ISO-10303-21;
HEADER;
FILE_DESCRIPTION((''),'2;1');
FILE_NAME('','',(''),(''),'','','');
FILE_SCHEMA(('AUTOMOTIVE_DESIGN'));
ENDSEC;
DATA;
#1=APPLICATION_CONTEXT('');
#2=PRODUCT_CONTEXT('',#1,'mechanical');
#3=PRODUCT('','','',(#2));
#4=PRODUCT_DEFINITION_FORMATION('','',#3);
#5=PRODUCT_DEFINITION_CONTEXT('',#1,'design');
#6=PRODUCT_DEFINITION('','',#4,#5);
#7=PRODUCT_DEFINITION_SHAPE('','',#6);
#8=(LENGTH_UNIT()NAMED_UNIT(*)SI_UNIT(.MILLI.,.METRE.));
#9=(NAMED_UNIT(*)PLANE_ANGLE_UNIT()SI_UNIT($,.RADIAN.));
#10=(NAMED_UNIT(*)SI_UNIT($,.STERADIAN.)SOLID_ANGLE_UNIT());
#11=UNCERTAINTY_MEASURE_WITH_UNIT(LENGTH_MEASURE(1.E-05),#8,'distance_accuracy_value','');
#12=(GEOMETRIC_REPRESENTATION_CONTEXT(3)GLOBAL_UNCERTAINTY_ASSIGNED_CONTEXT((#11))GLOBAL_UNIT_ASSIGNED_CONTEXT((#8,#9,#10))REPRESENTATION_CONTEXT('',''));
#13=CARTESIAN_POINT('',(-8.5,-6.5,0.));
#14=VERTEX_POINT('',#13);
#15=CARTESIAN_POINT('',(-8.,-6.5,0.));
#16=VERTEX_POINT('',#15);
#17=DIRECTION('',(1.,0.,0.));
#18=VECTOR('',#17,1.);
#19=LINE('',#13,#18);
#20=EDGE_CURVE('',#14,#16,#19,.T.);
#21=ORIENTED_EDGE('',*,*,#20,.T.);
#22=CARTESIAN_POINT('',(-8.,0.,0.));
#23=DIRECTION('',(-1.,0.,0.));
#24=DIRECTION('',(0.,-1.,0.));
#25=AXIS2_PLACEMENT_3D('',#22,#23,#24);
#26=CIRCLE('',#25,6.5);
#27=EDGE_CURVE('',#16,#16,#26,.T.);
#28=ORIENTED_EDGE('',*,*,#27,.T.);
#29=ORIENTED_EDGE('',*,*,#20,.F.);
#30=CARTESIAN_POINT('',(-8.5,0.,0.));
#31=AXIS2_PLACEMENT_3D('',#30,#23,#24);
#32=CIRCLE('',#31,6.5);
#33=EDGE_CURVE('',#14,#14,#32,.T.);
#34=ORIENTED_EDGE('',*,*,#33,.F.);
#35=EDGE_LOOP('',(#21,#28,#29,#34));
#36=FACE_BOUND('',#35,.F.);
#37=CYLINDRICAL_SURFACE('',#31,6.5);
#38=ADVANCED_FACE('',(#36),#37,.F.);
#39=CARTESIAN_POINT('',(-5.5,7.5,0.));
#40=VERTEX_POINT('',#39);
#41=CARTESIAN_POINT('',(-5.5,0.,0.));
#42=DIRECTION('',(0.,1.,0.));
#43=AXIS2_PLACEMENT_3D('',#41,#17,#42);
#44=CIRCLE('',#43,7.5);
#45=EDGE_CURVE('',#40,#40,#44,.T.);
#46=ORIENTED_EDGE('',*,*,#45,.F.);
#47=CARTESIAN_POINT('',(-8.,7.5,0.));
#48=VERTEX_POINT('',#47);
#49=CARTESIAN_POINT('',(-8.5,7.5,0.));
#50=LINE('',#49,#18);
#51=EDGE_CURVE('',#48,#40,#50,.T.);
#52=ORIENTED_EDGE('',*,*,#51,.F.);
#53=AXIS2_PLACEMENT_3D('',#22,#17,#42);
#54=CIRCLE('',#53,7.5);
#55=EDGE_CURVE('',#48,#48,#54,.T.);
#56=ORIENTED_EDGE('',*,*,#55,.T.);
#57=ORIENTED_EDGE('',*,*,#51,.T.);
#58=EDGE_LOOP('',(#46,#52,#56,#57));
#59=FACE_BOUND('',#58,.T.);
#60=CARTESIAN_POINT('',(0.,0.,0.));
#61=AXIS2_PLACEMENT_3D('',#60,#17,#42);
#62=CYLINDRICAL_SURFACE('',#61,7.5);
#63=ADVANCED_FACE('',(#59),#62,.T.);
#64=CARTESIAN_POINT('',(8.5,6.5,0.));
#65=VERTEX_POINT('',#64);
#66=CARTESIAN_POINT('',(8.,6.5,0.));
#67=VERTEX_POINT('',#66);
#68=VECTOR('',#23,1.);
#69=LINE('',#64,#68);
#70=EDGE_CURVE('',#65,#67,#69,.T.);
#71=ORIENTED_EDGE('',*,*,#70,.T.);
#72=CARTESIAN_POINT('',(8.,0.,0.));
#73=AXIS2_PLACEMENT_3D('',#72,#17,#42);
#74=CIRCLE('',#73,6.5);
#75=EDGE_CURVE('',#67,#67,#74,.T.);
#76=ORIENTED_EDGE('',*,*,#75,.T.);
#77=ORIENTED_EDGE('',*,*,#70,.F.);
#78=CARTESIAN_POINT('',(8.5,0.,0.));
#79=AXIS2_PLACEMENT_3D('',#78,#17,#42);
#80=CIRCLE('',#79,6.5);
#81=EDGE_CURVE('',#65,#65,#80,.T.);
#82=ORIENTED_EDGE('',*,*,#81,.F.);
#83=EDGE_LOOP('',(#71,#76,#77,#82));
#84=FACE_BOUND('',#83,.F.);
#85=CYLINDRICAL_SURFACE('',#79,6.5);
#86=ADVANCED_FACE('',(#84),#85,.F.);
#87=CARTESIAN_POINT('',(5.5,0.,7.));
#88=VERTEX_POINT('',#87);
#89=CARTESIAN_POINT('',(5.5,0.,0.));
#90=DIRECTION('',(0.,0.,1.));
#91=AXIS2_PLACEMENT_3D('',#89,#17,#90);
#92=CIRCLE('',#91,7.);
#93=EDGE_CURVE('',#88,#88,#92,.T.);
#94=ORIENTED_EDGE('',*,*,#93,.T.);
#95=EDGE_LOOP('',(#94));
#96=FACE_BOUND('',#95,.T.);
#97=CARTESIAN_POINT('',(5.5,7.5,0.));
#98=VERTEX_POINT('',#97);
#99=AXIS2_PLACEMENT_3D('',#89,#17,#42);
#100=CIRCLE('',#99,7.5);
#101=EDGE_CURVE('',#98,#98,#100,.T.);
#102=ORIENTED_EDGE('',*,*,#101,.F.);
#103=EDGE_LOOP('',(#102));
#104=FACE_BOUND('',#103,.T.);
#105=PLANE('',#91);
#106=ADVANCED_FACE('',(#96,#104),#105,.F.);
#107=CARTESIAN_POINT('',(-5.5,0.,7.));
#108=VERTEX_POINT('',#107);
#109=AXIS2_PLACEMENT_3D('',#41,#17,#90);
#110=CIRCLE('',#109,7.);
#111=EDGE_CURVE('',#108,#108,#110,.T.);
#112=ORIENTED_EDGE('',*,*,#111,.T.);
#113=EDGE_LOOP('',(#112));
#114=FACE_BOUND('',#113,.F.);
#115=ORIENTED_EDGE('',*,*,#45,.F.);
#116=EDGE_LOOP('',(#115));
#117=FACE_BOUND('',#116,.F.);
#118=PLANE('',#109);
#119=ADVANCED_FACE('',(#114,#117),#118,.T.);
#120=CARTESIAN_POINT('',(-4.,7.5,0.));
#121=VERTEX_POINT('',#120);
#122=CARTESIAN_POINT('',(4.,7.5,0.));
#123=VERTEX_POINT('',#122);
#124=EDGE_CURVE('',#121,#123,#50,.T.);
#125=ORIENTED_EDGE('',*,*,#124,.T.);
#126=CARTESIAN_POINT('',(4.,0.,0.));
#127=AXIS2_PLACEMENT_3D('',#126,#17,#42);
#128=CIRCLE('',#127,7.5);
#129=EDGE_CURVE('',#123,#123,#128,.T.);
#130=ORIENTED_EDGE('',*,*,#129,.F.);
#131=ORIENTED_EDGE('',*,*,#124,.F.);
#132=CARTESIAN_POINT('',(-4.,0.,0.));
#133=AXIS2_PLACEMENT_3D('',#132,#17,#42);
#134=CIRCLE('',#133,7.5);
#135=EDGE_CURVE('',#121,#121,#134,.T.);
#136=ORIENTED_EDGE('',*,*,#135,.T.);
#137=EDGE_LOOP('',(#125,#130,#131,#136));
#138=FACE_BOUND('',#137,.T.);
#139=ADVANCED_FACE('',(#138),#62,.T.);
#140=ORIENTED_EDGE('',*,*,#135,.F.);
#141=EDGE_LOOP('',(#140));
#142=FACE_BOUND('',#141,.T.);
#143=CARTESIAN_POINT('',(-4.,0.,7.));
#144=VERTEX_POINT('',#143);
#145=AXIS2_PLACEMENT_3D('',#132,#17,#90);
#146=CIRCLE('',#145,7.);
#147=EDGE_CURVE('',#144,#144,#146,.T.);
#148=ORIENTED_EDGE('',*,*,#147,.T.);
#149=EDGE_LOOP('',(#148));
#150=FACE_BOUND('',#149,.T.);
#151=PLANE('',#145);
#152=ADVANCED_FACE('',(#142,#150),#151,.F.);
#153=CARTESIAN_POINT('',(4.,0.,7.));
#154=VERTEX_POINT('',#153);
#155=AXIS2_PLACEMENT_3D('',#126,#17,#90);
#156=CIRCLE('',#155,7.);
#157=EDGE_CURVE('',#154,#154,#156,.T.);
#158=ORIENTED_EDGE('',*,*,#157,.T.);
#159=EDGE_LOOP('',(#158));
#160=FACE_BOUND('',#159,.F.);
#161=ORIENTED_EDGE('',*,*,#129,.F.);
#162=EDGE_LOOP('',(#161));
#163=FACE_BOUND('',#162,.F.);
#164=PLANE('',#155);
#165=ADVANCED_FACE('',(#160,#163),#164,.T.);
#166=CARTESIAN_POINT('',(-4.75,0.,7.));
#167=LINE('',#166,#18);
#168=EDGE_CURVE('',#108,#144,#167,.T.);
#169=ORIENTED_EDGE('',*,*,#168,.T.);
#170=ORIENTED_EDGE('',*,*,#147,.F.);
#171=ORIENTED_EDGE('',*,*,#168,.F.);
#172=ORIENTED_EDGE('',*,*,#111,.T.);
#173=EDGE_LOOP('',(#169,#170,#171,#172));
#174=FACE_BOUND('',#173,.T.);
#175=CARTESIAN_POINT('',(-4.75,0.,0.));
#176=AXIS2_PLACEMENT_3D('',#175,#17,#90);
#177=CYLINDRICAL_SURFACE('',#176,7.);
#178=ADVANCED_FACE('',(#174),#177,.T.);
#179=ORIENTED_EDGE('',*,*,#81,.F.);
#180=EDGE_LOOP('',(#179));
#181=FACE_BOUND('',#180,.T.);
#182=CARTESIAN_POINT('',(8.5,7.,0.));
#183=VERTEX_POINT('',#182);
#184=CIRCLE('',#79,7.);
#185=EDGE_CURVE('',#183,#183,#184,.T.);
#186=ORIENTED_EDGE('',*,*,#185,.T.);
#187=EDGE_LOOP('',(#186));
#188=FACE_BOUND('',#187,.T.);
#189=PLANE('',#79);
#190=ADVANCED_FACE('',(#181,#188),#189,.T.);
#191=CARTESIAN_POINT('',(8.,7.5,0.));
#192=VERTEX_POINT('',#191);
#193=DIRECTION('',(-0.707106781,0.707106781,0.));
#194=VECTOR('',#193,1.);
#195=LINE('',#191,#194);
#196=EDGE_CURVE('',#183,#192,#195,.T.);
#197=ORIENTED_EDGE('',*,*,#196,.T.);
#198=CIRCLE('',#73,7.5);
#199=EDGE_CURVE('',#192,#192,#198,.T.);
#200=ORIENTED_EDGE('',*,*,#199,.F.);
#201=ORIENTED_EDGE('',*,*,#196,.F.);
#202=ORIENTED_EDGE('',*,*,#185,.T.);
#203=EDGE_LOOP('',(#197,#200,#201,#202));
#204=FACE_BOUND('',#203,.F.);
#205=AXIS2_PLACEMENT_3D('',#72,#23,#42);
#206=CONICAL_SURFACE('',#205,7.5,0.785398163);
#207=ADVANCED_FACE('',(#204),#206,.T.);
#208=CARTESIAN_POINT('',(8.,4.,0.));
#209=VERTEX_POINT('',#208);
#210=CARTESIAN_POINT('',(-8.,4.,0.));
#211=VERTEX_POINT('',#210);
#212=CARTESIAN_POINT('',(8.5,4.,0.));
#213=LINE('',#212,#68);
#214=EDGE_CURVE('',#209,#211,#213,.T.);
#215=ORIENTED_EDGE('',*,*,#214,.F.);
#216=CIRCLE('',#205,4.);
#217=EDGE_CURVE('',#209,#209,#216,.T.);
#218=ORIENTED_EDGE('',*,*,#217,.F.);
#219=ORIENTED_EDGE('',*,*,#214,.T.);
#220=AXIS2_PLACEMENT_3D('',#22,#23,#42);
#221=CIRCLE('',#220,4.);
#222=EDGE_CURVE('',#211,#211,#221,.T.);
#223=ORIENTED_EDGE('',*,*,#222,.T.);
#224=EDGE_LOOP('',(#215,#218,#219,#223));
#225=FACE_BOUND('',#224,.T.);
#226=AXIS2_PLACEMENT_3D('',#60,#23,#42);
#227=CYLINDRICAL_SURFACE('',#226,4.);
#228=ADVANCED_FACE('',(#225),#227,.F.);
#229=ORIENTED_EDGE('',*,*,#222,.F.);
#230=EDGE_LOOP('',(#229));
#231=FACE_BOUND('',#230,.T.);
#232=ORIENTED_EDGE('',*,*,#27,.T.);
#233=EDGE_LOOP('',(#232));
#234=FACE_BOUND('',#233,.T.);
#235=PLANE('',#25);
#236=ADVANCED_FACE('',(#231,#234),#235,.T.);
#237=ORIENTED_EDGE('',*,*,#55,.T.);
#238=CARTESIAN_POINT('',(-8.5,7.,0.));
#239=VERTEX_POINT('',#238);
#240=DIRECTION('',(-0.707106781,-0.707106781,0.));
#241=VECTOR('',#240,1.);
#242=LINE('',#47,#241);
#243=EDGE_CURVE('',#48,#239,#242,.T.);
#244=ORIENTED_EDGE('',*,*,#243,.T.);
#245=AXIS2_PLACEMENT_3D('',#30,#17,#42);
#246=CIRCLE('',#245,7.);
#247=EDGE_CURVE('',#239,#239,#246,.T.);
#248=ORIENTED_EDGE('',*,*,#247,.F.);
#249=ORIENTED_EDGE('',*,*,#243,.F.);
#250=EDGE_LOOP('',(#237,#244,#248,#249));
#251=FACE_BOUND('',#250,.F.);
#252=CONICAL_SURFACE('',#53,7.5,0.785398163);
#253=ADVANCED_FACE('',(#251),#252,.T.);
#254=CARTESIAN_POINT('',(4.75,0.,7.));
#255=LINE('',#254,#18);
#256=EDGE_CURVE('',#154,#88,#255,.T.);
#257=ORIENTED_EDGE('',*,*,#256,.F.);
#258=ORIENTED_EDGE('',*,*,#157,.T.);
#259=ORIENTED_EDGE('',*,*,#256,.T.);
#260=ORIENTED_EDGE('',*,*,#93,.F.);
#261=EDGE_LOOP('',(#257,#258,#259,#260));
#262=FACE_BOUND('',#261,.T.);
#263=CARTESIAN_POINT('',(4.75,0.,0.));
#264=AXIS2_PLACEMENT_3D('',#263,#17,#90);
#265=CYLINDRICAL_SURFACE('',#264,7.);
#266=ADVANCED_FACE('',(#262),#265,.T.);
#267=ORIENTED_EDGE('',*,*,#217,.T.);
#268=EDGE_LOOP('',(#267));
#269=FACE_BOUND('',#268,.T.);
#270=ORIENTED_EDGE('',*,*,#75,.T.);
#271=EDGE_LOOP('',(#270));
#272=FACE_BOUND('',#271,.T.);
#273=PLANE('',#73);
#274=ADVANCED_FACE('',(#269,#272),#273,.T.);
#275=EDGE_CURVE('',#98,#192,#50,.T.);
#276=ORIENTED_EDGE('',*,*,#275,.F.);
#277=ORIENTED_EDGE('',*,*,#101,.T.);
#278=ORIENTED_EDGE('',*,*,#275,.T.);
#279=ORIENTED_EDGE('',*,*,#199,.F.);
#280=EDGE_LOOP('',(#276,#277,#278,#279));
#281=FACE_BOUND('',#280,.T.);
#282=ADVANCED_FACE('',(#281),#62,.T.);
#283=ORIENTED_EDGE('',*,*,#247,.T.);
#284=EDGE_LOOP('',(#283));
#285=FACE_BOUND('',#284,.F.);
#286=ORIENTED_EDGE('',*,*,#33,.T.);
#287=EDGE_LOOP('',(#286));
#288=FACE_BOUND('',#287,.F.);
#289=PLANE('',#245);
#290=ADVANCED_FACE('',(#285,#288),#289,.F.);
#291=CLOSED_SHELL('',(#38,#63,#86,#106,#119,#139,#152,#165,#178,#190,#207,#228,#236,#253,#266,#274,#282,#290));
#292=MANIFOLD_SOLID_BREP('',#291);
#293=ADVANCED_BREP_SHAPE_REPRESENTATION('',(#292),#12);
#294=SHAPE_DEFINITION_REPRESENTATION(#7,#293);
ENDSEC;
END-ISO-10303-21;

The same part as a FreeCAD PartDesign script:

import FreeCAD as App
import Part
import Sketcher

V = App.Vector


def edges_at(feature, points):
    """Names of the edges that pass closest to the given points."""
    edges = feature.Shape.Edges
    near = lambda p: min(range(len(edges)), key=lambda i: edges[i].distToShape(Part.Vertex(*p))[0])
    return sorted({f"Edge{near(p) + 1}" for p in points})


def add_polygon(sketch, points):
    """Adds a closed chain of lines whose ends are joined by coincident constraints."""
    first, n = sketch.GeometryCount, len(points)
    for a, b in zip(points, points[1:] + points[:1]):
        sketch.addGeometry(Part.LineSegment(App.Vector(*a, 0), App.Vector(*b, 0)), False)
    for i in range(n):
        sketch.addConstraint(Sketcher.Constraint("Coincident", first + i, 2, first + (i + 1) % n, 1))

doc = App.newDocument("Part")
body = doc.addObject("PartDesign::Body", "Body")

# Sketch on YZ plane
sketch1 = doc.addObject("Sketcher::SketchObject", "Sketch")
body.addObject(sketch1)
sketch1.AttachmentSupport = (doc.YZ_Plane, [""])
sketch1.MapMode = "FlatFace"
sketch1.addGeometry(Part.Circle(V(0, 0, 0), V(0, 0, 1), 7.5), False)
sketch1.addGeometry(Part.Circle(V(0, 0, 0), V(0, 0, 1), 4), False)
sketch1.addConstraint(Sketcher.Constraint("Coincident", 0, 3, -1, 1))
sketch1.addConstraint(Sketcher.Constraint("Coincident", 1, 3, -1, 1))
sketch1.addConstraint(Sketcher.Constraint("Diameter", 0, 15.0))
sketch1.addConstraint(Sketcher.Constraint("Diameter", 1, 8.0))
pad1 = doc.addObject("PartDesign::Pad", "Pad")
body.addObject(pad1)
pad1.Profile = sketch1
pad1.Length = 17
pad1.Midplane = True

# Sketch on YZ plane
sketch2 = doc.addObject("Sketcher::SketchObject", "Sketch001")
body.addObject(sketch2)
sketch2.AttachmentSupport = (doc.YZ_Plane, [""])
sketch2.MapMode = "FlatFace"
sketch2.AttachmentOffset = App.Placement(V(0, 0, 8.5), App.Rotation())
sketch2.addGeometry(Part.Circle(V(0, 0, 0), V(0, 0, 1), 6), False)
sketch2.addConstraint(Sketcher.Constraint("Coincident", 0, 3, -1, 1))
sketch2.addConstraint(Sketcher.Constraint("Diameter", 0, 13.0))
pocket1 = doc.addObject("PartDesign::Pocket", "Pocket")
body.addObject(pocket1)
pocket1.Profile = sketch2
pocket1.Length = 0.5

# Sketch on YZ plane
sketch3 = doc.addObject("Sketcher::SketchObject", "Sketch002")
body.addObject(sketch3)
sketch3.AttachmentSupport = (doc.YZ_Plane, [""])
sketch3.MapMode = "FlatFace"
sketch3.AttachmentOffset = App.Placement(V(0, 0, -8.5), App.Rotation())
sketch3.addGeometry(Part.Circle(V(0, 0, 0), V(0, 0, 1), 6), False)
sketch3.addConstraint(Sketcher.Constraint("Coincident", 0, 3, -1, 1))
sketch3.addConstraint(Sketcher.Constraint("Diameter", 0, 13.0))
pocket2 = doc.addObject("PartDesign::Pocket", "Pocket001")
body.addObject(pocket2)
pocket2.Profile = sketch3
pocket2.Length = 0.5
pocket2.Reversed = True

# Sketch on XZ plane
sketch4 = doc.addObject("Sketcher::SketchObject", "Sketch003")
body.addObject(sketch4)
sketch4.AttachmentSupport = (doc.XZ_Plane, [""])
sketch4.MapMode = "FlatFace"
add_polygon(sketch4, [(-5.5, 8), (-5.5, 7), (-4, 7), (-4, 8)])  # lines 0-3
add_polygon(sketch4, [(4, 8), (4, 7), (5.5, 7), (5.5, 8)])  # lines 4-7
sketch4.addConstraint(Sketcher.Constraint("Vertical", 0))
sketch4.addConstraint(Sketcher.Constraint("Horizontal", 1))
sketch4.addConstraint(Sketcher.Constraint("Vertical", 2))
sketch4.addConstraint(Sketcher.Constraint("Horizontal", 3))
sketch4.addConstraint(Sketcher.Constraint("Vertical", 4))
sketch4.addConstraint(Sketcher.Constraint("Horizontal", 5))
sketch4.addConstraint(Sketcher.Constraint("Vertical", 6))
sketch4.addConstraint(Sketcher.Constraint("Horizontal", 7))
sketch4.addConstraint(Sketcher.Constraint("Symmetric", 1, 2, 4, 2, -2))
sketch4.addConstraint(Sketcher.Constraint("Symmetric", 3, 2, 6, 2, -2))
sketch4.addConstraint(Sketcher.Constraint("DistanceY", 0, 2, 0, 1, 1.0))
sketch4.addConstraint(Sketcher.Constraint("DistanceX", 1, 1, 1, 2, 1.5))
sketch4.addConstraint(Sketcher.Constraint("DistanceY", -1, 1, 0, 2, 7.0))
sketch4.addConstraint(Sketcher.Constraint("DistanceX", 1, 2, -1, 1, 4.0))
groove = doc.addObject("PartDesign::Groove", "Groove")
body.addObject(groove)
groove.Profile = sketch4
groove.ReferenceAxis = (sketch4, ["H_Axis"])
groove.Angle = 360
doc.recompute()

chamfer = doc.addObject("PartDesign::Chamfer", "Chamfer")
body.addObject(chamfer)
chamfer.Base = (groove, edges_at(groove, [(-8.5, -7.5, 0), (8.5, -7.5, 0)]))
chamfer.Size = 0.5

doc.recompute()
